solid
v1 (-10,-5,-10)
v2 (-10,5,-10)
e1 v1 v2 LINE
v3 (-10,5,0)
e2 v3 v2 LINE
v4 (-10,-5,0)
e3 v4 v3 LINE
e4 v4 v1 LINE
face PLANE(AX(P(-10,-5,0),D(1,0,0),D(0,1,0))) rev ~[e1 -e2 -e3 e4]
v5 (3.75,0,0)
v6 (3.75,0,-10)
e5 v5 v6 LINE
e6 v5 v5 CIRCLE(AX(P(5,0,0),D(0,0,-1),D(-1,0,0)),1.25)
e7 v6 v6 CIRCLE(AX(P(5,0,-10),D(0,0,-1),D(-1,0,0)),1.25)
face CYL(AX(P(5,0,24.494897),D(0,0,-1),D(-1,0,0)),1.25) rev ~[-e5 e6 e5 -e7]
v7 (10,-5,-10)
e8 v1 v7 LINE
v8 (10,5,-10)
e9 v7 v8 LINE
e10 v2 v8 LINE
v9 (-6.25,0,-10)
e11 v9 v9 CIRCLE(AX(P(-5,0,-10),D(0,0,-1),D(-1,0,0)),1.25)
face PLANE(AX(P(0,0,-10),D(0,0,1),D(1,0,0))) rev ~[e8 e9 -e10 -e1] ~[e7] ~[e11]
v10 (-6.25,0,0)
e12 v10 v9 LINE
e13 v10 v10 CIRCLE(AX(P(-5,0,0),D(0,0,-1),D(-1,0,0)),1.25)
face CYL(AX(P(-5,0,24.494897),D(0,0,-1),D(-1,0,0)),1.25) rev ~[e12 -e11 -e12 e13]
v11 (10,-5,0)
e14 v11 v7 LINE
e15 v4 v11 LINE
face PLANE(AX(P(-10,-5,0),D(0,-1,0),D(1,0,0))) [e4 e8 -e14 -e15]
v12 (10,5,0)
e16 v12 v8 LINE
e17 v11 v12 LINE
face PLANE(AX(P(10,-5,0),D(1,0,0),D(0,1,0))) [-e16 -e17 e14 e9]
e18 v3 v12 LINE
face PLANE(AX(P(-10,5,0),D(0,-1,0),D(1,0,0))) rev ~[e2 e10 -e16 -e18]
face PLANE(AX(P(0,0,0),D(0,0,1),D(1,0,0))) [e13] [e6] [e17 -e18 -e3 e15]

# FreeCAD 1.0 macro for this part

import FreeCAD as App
import Part
import Sketcher

V = App.Vector

doc = App.newDocument("Part")
body = doc.addObject("PartDesign::Body", "Body")

# Sketch on XY plane
sketch1 = body.newObject("Sketcher::SketchObject", "Sketch")
sketch1.AttachmentSupport = (doc.getObject("XY_Plane"), [""])
sketch1.MapMode = "FlatFace"
sketch1.addGeometry([
    Part.LineSegment(V(-10, 5, 0), V(-10, -5, 0)),
    Part.LineSegment(V(-10, -5, 0), V(10, -5, 0)),
    Part.LineSegment(V(10, -5, 0), V(10, 5, 0)),
    Part.LineSegment(V(10, 5, 0), V(-10, 5, 0)),
], False)
sketch1.addConstraint([
    Sketcher.Constraint("Coincident", 0, 2, 1, 1),
    Sketcher.Constraint("Coincident", 1, 2, 2, 1),
    Sketcher.Constraint("Coincident", 2, 2, 3, 1),
    Sketcher.Constraint("Coincident", 3, 2, 0, 1),
    Sketcher.Constraint("Vertical", 0),
    Sketcher.Constraint("Horizontal", 1),
    Sketcher.Constraint("Vertical", 2),
    Sketcher.Constraint("Horizontal", 3),
    Sketcher.Constraint("Symmetric", 0, 2, 2, 2, -1, 1),
    Sketcher.Constraint("DistanceX", 1, 1, 1, 2, 20.0),
    Sketcher.Constraint("DistanceY", 0, 2, 0, 1, 10.0),
])
pad1 = body.newObject("PartDesign::Pad", "Pad")
pad1.Profile = sketch1
pad1.Length = 10
pad1.Reversed = True

# Sketch on XY plane
sketch2 = body.newObject("Sketcher::SketchObject", "Sketch001")
sketch2.AttachmentSupport = (doc.getObject("XY_Plane"), [""])
sketch2.MapMode = "FlatFace"
sketch2.addGeometry([
    Part.Circle(V(-5, 0, 0), V(0, 0, 1), 1.2),
    Part.Circle(V(5, 0, 0), V(0, 0, 1), 1.2),
], False)
sketch2.addConstraint([
    Sketcher.Constraint("Equal", 0, 1),
    Sketcher.Constraint("Symmetric", 0, 3, 1, 3, -1, 1),
    Sketcher.Constraint("PointOnObject", 0, 3, -1),
    Sketcher.Constraint("Diameter", 0, 2.5),
    Sketcher.Constraint("DistanceX", 0, 3, -1, 1, 5.0),
])
doc.recompute()
hole = body.newObject("PartDesign::Hole", "Hole")
hole.Profile = sketch2
hole.ThreadType = "None"
hole.Diameter = 2.5
hole.DepthType = "ThroughAll"

doc.recompute()
